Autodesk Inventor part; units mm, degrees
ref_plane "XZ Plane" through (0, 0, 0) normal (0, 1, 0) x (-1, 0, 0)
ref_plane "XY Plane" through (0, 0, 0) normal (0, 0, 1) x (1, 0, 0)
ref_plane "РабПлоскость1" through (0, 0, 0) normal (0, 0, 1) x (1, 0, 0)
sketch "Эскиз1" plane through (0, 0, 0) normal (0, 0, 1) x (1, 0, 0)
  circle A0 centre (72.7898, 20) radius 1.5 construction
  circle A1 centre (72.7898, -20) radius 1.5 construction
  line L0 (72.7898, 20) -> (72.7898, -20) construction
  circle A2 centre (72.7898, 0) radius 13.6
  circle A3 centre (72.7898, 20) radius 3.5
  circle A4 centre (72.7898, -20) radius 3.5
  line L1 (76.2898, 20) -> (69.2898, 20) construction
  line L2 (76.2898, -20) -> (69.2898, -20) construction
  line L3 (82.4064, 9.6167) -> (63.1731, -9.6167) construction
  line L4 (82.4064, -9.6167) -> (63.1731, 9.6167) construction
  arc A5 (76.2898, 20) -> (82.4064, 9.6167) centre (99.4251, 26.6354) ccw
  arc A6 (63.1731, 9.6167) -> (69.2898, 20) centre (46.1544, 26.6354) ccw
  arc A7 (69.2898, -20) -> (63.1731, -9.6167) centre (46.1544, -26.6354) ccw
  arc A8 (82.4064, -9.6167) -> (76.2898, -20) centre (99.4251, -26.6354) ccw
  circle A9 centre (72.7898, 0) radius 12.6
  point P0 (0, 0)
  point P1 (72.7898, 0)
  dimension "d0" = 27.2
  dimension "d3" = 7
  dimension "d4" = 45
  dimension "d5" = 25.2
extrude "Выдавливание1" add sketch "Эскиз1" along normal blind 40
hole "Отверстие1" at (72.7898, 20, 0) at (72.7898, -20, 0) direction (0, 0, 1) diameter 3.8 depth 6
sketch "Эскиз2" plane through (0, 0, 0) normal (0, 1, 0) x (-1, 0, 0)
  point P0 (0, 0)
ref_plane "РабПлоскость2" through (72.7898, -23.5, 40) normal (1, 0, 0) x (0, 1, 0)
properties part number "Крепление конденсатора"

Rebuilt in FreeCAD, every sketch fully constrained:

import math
import FreeCAD as App
import Part
import Sketcher

doc = App.newDocument("Part")
body = doc.addObject("PartDesign::Body", "Body")

# Sketch on XY plane
sketch1 = body.newObject("Sketcher::SketchObject", "Sketch")
sketch1.AttachmentSupport = (doc.getObject("XY_Plane"), [""])
sketch1.MapMode = "FlatFace"
sketch1.addGeometry([
    Part.ArcOfCircle(Part.Circle(App.Vector(72.8, 0, 0), App.Vector(0, 0, 1), 13.6), math.radians(-45), math.radians(45)),  # 0
    Part.ArcOfCircle(Part.Circle(App.Vector(99.4, 26.6, 0), App.Vector(0, 0, 1), 24.1), math.radians(-164), math.radians(-135)),  # 1
    Part.ArcOfCircle(Part.Circle(App.Vector(72.8, 20, 0), App.Vector(0, 0, 1), 3.5), math.radians(0), math.radians(180)),  # 2
    Part.ArcOfCircle(Part.Circle(App.Vector(46.2, 26.6, 0), App.Vector(0, 0, 1), 24.1), math.radians(-45), math.radians(-16)),  # 3
    Part.ArcOfCircle(Part.Circle(App.Vector(72.8, 0, 0), App.Vector(0, 0, 1), 13.6), math.radians(135), math.radians(225)),  # 4
    Part.ArcOfCircle(Part.Circle(App.Vector(46.2, -26.6, 0), App.Vector(0, 0, 1), 24.1), math.radians(16), math.radians(45)),  # 5
    Part.ArcOfCircle(Part.Circle(App.Vector(72.8, -20, 0), App.Vector(0, 0, 1), 3.5), math.radians(180), math.radians(360)),  # 6
    Part.ArcOfCircle(Part.Circle(App.Vector(99.4, -26.6, 0), App.Vector(0, 0, 1), 24.1), math.radians(135), math.radians(164)),  # 7
    Part.Circle(App.Vector(72.8, 0, 0), App.Vector(0, 0, 1), 12.6),  # 8
], False)
sketch1.addConstraint([
    Sketcher.Constraint("Tangent", 0, 2, 1, 2),
    Sketcher.Constraint("Coincident", 1, 1, 2, 1),
    Sketcher.Constraint("Coincident", 2, 2, 3, 2),
    Sketcher.Constraint("Tangent", 3, 1, 4, 1),
    Sketcher.Constraint("Tangent", 4, 2, 5, 2),
    Sketcher.Constraint("Coincident", 5, 1, 6, 1),
    Sketcher.Constraint("Coincident", 6, 2, 7, 2),
    Sketcher.Constraint("Tangent", 7, 1, 0, 1),
    Sketcher.Constraint("Coincident", 4, 3, 0, 3),
    Sketcher.Constraint("Coincident", 8, 3, 0, 3),
    Sketcher.Constraint("Equal", 1, 3),
    Sketcher.Constraint("Equal", 0, 4),
    Sketcher.Constraint("Equal", 3, 5),
    Sketcher.Constraint("Equal", 2, 6),
    Sketcher.Constraint("Equal", 5, 7),
    Sketcher.Constraint("Symmetric", 3, 3, 5, 3, -1),
    Sketcher.Constraint("Symmetric", 2, 3, 6, 3, -1),
    Sketcher.Constraint("Horizontal", 1, 3, 3, 3),
    Sketcher.Constraint("Horizontal", 5, 3, 7, 3),
    Sketcher.Constraint("Horizontal", 2, 3, 1, 1),
    Sketcher.Constraint("Horizontal", 1, 1, 2, 2),
    Sketcher.Constraint("Diameter", 8, 25.2),
    Sketcher.Constraint("Radius", 0, 13.6),
    Sketcher.Constraint("Radius", 2, 3.5),
    Sketcher.Constraint("DistanceY", -1, 1, 2, 3, 20.0),
    Sketcher.Constraint("Radius", 1, 24.068),
    Sketcher.Constraint("DistanceX", -1, 1, 1, 3, 99.425),
])
pad1 = body.newObject("PartDesign::Pad", "Pad")
pad1.Profile = sketch1
pad1.Length = 40

# Sketch on XY plane
sketch2 = body.newObject("Sketcher::SketchObject", "Sketch001")
sketch2.AttachmentSupport = (doc.getObject("XY_Plane"), [""])
sketch2.MapMode = "FlatFace"
sketch2.addGeometry([
    Part.Circle(App.Vector(72.8, 20, 0), App.Vector(0, 0, 1), 1.9),
    Part.Circle(App.Vector(72.8, -20, 0), App.Vector(0, 0, 1), 1.9),
], False)
sketch2.addConstraint([
    Sketcher.Constraint("Equal", 0, 1),
    Sketcher.Constraint("Symmetric", 0, 3, 1, 3, -1),
    Sketcher.Constraint("Diameter", 0, 3.8),
    Sketcher.Constraint("DistanceY", -1, 1, 0, 3, 20.0),
    Sketcher.Constraint("DistanceX", -1, 1, 0, 3, 72.7898),
])
doc.recompute()
hole = body.newObject("PartDesign::Hole", "Hole")
hole.Profile = sketch2
hole.ThreadType = "None"
hole.Diameter = 3.8
hole.DepthType = "Dimension"
hole.Depth = 6
hole.DrillPoint = "Flat"
hole.Reversed = True

doc.recompute()
